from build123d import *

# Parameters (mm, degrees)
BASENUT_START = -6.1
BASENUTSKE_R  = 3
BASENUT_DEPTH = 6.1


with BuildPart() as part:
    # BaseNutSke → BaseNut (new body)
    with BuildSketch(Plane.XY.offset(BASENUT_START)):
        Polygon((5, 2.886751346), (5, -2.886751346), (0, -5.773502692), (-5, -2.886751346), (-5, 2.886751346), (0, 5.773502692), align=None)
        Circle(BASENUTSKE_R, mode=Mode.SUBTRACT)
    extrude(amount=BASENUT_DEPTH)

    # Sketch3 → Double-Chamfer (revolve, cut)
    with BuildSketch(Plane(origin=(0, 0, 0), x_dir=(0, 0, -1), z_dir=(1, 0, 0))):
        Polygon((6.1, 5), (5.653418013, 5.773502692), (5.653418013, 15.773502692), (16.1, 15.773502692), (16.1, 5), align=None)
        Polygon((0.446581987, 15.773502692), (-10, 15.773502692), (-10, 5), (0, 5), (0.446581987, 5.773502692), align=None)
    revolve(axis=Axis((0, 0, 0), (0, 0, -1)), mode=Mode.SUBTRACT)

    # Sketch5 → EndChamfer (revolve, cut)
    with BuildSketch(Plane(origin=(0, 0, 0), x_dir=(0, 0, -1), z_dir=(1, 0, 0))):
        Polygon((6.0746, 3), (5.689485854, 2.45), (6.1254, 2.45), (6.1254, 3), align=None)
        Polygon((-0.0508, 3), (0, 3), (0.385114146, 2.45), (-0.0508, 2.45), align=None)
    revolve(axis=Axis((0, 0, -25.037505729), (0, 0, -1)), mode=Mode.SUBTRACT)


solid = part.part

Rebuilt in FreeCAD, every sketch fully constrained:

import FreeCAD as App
import Part
import Sketcher
from FreeCAD import Vector
Q = App.Units.Quantity

doc = App.newDocument("Part")
body = doc.addObject("PartDesign::Body", "Body")

sketch1 = body.newObject("Sketcher::SketchObject", "Sketch")
sketch1.AttachmentSupport = (doc.getObject("XY_Plane"), [""])
sketch1.MapMode = "FlatFace"
sketch1.AttachmentOffset = App.Placement(Vector(0, 0, -6.1), App.Rotation())
sketch1.addGeometry(Part.LineSegment(Vector(5, -2.886751, 0), Vector(5, 2.886751, 0)), False)
sketch1.addGeometry(Part.LineSegment(Vector(5, 2.886751, 0), Vector(0, 5.773503, 0)), False)
sketch1.addGeometry(Part.LineSegment(Vector(0, 5.773503, 0), Vector(-5, 2.886751, 0)), False)
sketch1.addGeometry(Part.LineSegment(Vector(-5, 2.886751, 0), Vector(-5, -2.886751, 0)), False)
sketch1.addGeometry(Part.LineSegment(Vector(-5, -2.886751, 0), Vector(0, -5.773503, 0)), False)
sketch1.addGeometry(Part.LineSegment(Vector(0, -5.773503, 0), Vector(5, -2.886751, 0)), False)
sketch1.addGeometry(Part.Circle(Vector(0, 0, 0), Vector(0, 0, 1), 3), False)
sketch1.addConstraint(Sketcher.Constraint("Coincident", 0, 2, 1, 1))
sketch1.addConstraint(Sketcher.Constraint("Coincident", 1, 2, 2, 1))
sketch1.addConstraint(Sketcher.Constraint("Coincident", 2, 2, 3, 1))
sketch1.addConstraint(Sketcher.Constraint("Coincident", 3, 2, 4, 1))
sketch1.addConstraint(Sketcher.Constraint("Coincident", 4, 2, 5, 1))
sketch1.addConstraint(Sketcher.Constraint("Coincident", 5, 2, 0, 1))
sketch1.addConstraint(Sketcher.Constraint("Vertical", 0))
sketch1.addConstraint(Sketcher.Constraint("Vertical", 3))
sketch1.addConstraint(Sketcher.Constraint("Coincident", 6, 3, -1, 1))
sketch1.addConstraint(Sketcher.Constraint("Symmetric", 0, 2, 3, 2, -1, 1))
sketch1.addConstraint(Sketcher.Constraint("Symmetric", 1, 2, 4, 2, -1, 1))
sketch1.addConstraint(Sketcher.Constraint("PointOnObject", 1, 2, -2))
sketch1.addConstraint(Sketcher.Constraint("Parallel", 2, 5))
sketch1.addConstraint(Sketcher.Constraint("Horizontal", 0, 2, 2, 2))
sketch1.addConstraint(Sketcher.Constraint("Diameter", 6, 6.0))
sketch1.addConstraint(Sketcher.Constraint("Angle", 1, Q("150 deg")))
sketch1.addConstraint(Sketcher.Constraint("DistanceX", -1, 1, 0, 2, 5.0))
sketch1.addConstraint(Sketcher.Constraint("DistanceY", 0, 1, 0, 2, 5.773503))
pad1 = body.newObject("PartDesign::Pad", "Pad")
pad1.Profile = sketch1
pad1.Length = 6.1

sketch2 = body.newObject("Sketcher::SketchObject", "Sketch001")
sketch2.AttachmentSupport = (doc.getObject("YZ_Plane"), [""])
sketch2.MapMode = "FlatFace"
sketch2.addGeometry(Part.LineSegment(Vector(5.773503, -5.653418, 0), Vector(5, -6.1, 0)), False)
sketch2.addGeometry(Part.LineSegment(Vector(5, -6.1, 0), Vector(5, -16.1, 0)), False)
sketch2.addGeometry(Part.LineSegment(Vector(5, -16.1, 0), Vector(15.773503, -16.1, 0)), False)
sketch2.addGeometry(Part.LineSegment(Vector(15.773503, -16.1, 0), Vector(15.773503, -5.653418, 0)), False)
sketch2.addGeometry(Part.LineSegment(Vector(15.773503, -5.653418, 0), Vector(5.773503, -5.653418, 0)), False)
sketch2.addGeometry(Part.LineSegment(Vector(15.773503, -0.446582, 0), Vector(15.773503, 10, 0)), False)
sketch2.addGeometry(Part.LineSegment(Vector(15.773503, 10, 0), Vector(5, 10, 0)), False)
sketch2.addGeometry(Part.LineSegment(Vector(5, 10, 0), Vector(5, 0, 0)), False)
sketch2.addGeometry(Part.LineSegment(Vector(5, 0, 0), Vector(5.773503, -0.446582, 0)), False)
sketch2.addGeometry(Part.LineSegment(Vector(5.773503, -0.446582, 0), Vector(15.773503, -0.446582, 0)), False)
sketch2.addConstraint(Sketcher.Constraint("Coincident", 0, 2, 1, 1))
sketch2.addConstraint(Sketcher.Constraint("Coincident", 1, 2, 2, 1))
sketch2.addConstraint(Sketcher.Constraint("Coincident", 2, 2, 3, 1))
sketch2.addConstraint(Sketcher.Constraint("Coincident", 3, 2, 4, 1))
sketch2.addConstraint(Sketcher.Constraint("Coincident", 4, 2, 0, 1))
sketch2.addConstraint(Sketcher.Constraint("Coincident", 5, 2, 6, 1))
sketch2.addConstraint(Sketcher.Constraint("Coincident", 6, 2, 7, 1))
sketch2.addConstraint(Sketcher.Constraint("Coincident", 7, 2, 8, 1))
sketch2.addConstraint(Sketcher.Constraint("Coincident", 8, 2, 9, 1))
sketch2.addConstraint(Sketcher.Constraint("Coincident", 9, 2, 5, 1))
sketch2.addConstraint(Sketcher.Constraint("Vertical", 1))
sketch2.addConstraint(Sketcher.Constraint("Horizontal", 2))
sketch2.addConstraint(Sketcher.Constraint("Vertical", 3))
sketch2.addConstraint(Sketcher.Constraint("Horizontal", 4))
sketch2.addConstraint(Sketcher.Constraint("Vertical", 5))
sketch2.addConstraint(Sketcher.Constraint("Horizontal", 6))
sketch2.addConstraint(Sketcher.Constraint("Vertical", 7))
sketch2.addConstraint(Sketcher.Constraint("Horizontal", 9))
sketch2.addConstraint(Sketcher.Constraint("PointOnObject", 7, 2, -1))
sketch2.addConstraint(Sketcher.Constraint("Vertical", 3, 2, 5, 2))
sketch2.addConstraint(Sketcher.Constraint("Vertical", 1, 2, 6, 2))
sketch2.addConstraint(Sketcher.Constraint("Vertical", 4, 2, 8, 2))
sketch2.addConstraint(Sketcher.Constraint("Equal", 9, 1))
sketch2.addConstraint(Sketcher.Constraint("Equal", 3, 5))
sketch2.addConstraint(Sketcher.Constraint("Equal", 1, 7))
sketch2.addConstraint(Sketcher.Constraint("DistanceX", 4, 2, 4, 1, 10.0))
sketch2.addConstraint(Sketcher.Constraint("Angle", 0, Q("-150 deg")))
sketch2.addConstraint(Sketcher.Constraint("DistanceX", -1, 1, 0, 2, 5.0))
sketch2.addConstraint(Sketcher.Constraint("DistanceY", 0, 2, -1, 1, 6.1))
sketch2.addConstraint(Sketcher.Constraint("DistanceY", 3, 1, 3, 2, 10.446582))
groove = body.newObject("PartDesign::Groove", "Groove")
groove.Profile = sketch2
groove.ReferenceAxis = (sketch2, ["V_Axis"])
groove.Angle = 360

sketch3 = body.newObject("Sketcher::SketchObject", "Sketch002")
sketch3.AttachmentSupport = (doc.getObject("YZ_Plane"), [""])
sketch3.MapMode = "FlatFace"
sketch3.addGeometry(Part.LineSegment(Vector(3, -6.0746, 0), Vector(2.45, -5.689486, 0)), False)
sketch3.addGeometry(Part.LineSegment(Vector(2.45, -5.689486, 0), Vector(2.45, -6.1254, 0)), False)
sketch3.addGeometry(Part.LineSegment(Vector(2.45, -6.1254, 0), Vector(3, -6.1254, 0)), False)
sketch3.addGeometry(Part.LineSegment(Vector(3, -6.1254, 0), Vector(3, -6.0746, 0)), False)
sketch3.addGeometry(Part.LineSegment(Vector(3, 0, 0), Vector(3, 0.0508, 0)), False)
sketch3.addGeometry(Part.LineSegment(Vector(3, 0.0508, 0), Vector(2.45, 0.0508, 0)), False)
sketch3.addGeometry(Part.LineSegment(Vector(2.45, 0.0508, 0), Vector(2.45, -0.385114, 0)), False)
sketch3.addGeometry(Part.LineSegment(Vector(2.45, -0.385114, 0), Vector(3, 0, 0)), False)
sketch3.addConstraint(Sketcher.Constraint("Coincident", 0, 2, 1, 1))
sketch3.addConstraint(Sketcher.Constraint("Coincident", 1, 2, 2, 1))
sketch3.addConstraint(Sketcher.Constraint("Coincident", 2, 2, 3, 1))
sketch3.addConstraint(Sketcher.Constraint("Coincident", 3, 2, 0, 1))
sketch3.addConstraint(Sketcher.Constraint("Coincident", 4, 2, 5, 1))
sketch3.addConstraint(Sketcher.Constraint("Coincident", 5, 2, 6, 1))
sketch3.addConstraint(Sketcher.Constraint("Coincident", 6, 2, 7, 1))
sketch3.addConstraint(Sketcher.Constraint("Coincident", 7, 2, 4, 1))
sketch3.addConstraint(Sketcher.Constraint("Vertical", 1))
sketch3.addConstraint(Sketcher.Constraint("Horizontal", 2))
sketch3.addConstraint(Sketcher.Constraint("Vertical", 3))
sketch3.addConstraint(Sketcher.Constraint("Vertical", 4))
sketch3.addConstraint(Sketcher.Constraint("Horizontal", 5))
sketch3.addConstraint(Sketcher.Constraint("Vertical", 6))
sketch3.addConstraint(Sketcher.Constraint("PointOnObject", 7, 2, -1))
sketch3.addConstraint(Sketcher.Constraint("Vertical", 3, 2, 4, 2))
sketch3.addConstraint(Sketcher.Constraint("Vertical", 1, 2, 5, 2))
sketch3.addConstraint(Sketcher.Constraint("Equal", 3, 4))
sketch3.addConstraint(Sketcher.Constraint("Equal", 1, 6))
sketch3.addConstraint(Sketcher.Constraint("Angle", 0, Q("145 deg")))
sketch3.addConstraint(Sketcher.Constraint("DistanceX", -1, 1, 2, 2, 3.0))
sketch3.addConstraint(Sketcher.Constraint("DistanceX", 2, 1, 2, 2, 0.55))
sketch3.addConstraint(Sketcher.Constraint("DistanceY", 3, 1, 3, 2, 0.0508))
sketch3.addConstraint(Sketcher.Constraint("DistanceY", 1, 2, -1, 1, 6.1254))
groove2 = body.newObject("PartDesign::Groove", "Groove001")
groove2.Profile = sketch3
groove2.ReferenceAxis = (sketch3, ["V_Axis"])
groove2.Angle = 360

doc.recompute()
